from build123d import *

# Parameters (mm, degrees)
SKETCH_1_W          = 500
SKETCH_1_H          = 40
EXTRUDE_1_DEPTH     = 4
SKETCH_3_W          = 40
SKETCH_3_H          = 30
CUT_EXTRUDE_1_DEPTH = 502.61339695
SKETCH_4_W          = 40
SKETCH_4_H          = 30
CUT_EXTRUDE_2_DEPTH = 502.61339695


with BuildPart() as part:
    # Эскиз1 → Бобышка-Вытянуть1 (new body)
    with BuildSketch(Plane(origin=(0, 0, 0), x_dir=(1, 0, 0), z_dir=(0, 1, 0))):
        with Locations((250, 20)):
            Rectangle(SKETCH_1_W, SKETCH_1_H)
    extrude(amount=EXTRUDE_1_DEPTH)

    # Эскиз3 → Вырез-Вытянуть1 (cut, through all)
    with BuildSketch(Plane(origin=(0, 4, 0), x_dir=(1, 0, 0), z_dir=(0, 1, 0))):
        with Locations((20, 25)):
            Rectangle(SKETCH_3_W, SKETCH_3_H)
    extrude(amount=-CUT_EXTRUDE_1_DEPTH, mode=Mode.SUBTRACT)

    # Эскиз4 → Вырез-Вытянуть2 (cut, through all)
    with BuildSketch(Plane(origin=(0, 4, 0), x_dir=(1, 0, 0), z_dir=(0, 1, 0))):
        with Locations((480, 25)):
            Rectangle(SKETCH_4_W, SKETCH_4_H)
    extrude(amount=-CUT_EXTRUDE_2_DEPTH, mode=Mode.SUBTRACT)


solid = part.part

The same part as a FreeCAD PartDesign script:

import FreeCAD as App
import Part
import Sketcher
from FreeCAD import Vector
Q = App.Units.Quantity


def add_polygon(sketch, points):
    """Adds a closed chain of lines whose ends are joined by coincident constraints."""
    first, n = sketch.GeometryCount, len(points)
    for a, b in zip(points, points[1:] + points[:1]):
        sketch.addGeometry(Part.LineSegment(App.Vector(*a, 0), App.Vector(*b, 0)), False)
    for i in range(n):
        sketch.addConstraint(Sketcher.Constraint("Coincident", first + i, 2, first + (i + 1) % n, 1))

doc = App.newDocument("Part")
params = doc.addObject("Spreadsheet::Sheet", "Params")
for row, (alias, value) in enumerate([
    ("sketch1_width", "500 mm"),
    ("sketch1_height", "40 mm"),
    ("pad1_length", "4 mm"),
    ("sketch2_width", "40 mm"),
    ("sketch2_height", "30 mm"),
    ("sketch3_width", "40 mm"),
    ("sketch3_height", "30 mm"),
], start=1):
    params.set(f"A{row}", alias)
    params.set(f"B{row}", "=" + value)
    params.setAlias(f"B{row}", alias)

body = doc.addObject("PartDesign::Body", "Body")

# Sketch on XZ plane
sketch1 = body.newObject("Sketcher::SketchObject", "Sketch")
sketch1.AttachmentSupport = (doc.getObject("XZ_Plane"), [""])
sketch1.MapMode = "FlatFace"
add_polygon(sketch1, [(0, -40), (0, 0), (500, 0), (500, -40)])  # lines 0-3
sketch1.addConstraint(Sketcher.Constraint("Vertical", 0))
sketch1.addConstraint(Sketcher.Constraint("Horizontal", 1))
sketch1.addConstraint(Sketcher.Constraint("Vertical", 2))
sketch1.addConstraint(Sketcher.Constraint("Horizontal", 3))
sketch1.addConstraint(Sketcher.Constraint("Coincident", 0, 2, -1, 1))
sketch1.addConstraint(Sketcher.Constraint("DistanceX", 1, 1, 1, 2, Q("500 mm")))
sketch1.addConstraint(Sketcher.Constraint("DistanceY", 0, 1, 0, 2, Q("40 mm")))
sketch1.setExpression("Constraints[9]", "Params.sketch1_width")
sketch1.setExpression("Constraints[10]", "Params.sketch1_height")
pad1 = body.newObject("PartDesign::Pad", "Pad")
pad1.Profile = sketch1
pad1.setExpression("Length", "Params.pad1_length")
pad1.Reversed = True

# Sketch on XZ plane
sketch2 = body.newObject("Sketcher::SketchObject", "Sketch001")
sketch2.AttachmentSupport = (doc.getObject("XZ_Plane"), [""])
sketch2.MapMode = "FlatFace"
sketch2.AttachmentOffset = App.Placement(Vector(0, 0, -4), App.Rotation())
add_polygon(sketch2, [(0, -40), (0, -10), (40, -10), (40, -40)])  # lines 0-3
sketch2.addConstraint(Sketcher.Constraint("Vertical", 0))
sketch2.addConstraint(Sketcher.Constraint("Horizontal", 1))
sketch2.addConstraint(Sketcher.Constraint("Vertical", 2))
sketch2.addConstraint(Sketcher.Constraint("Horizontal", 3))
sketch2.addConstraint(Sketcher.Constraint("PointOnObject", 0, 2, -2))
sketch2.addConstraint(Sketcher.Constraint("DistanceX", 1, 1, 1, 2, Q("40 mm")))
sketch2.addConstraint(Sketcher.Constraint("DistanceY", 0, 1, 0, 2, Q("30 mm")))
sketch2.addConstraint(Sketcher.Constraint("DistanceY", 0, 2, -1, 1, Q("10 mm")))
sketch2.setExpression("Constraints[9]", "Params.sketch2_width")
sketch2.setExpression("Constraints[10]", "Params.sketch2_height")
pocket1 = body.newObject("PartDesign::Pocket", "Pocket")
pocket1.Profile = sketch2
pocket1.Type = "ThroughAll"
pocket1.Reversed = True

# Sketch on XZ plane
sketch3 = body.newObject("Sketcher::SketchObject", "Sketch002")
sketch3.AttachmentSupport = (doc.getObject("XZ_Plane"), [""])
sketch3.MapMode = "FlatFace"
sketch3.AttachmentOffset = App.Placement(Vector(0, 0, -4), App.Rotation())
add_polygon(sketch3, [(460, -40), (460, -10), (500, -10), (500, -40)])  # lines 0-3
sketch3.addConstraint(Sketcher.Constraint("Vertical", 0))
sketch3.addConstraint(Sketcher.Constraint("Horizontal", 1))
sketch3.addConstraint(Sketcher.Constraint("Vertical", 2))
sketch3.addConstraint(Sketcher.Constraint("Horizontal", 3))
sketch3.addConstraint(Sketcher.Constraint("DistanceX", 1, 1, 1, 2, Q("40 mm")))
sketch3.addConstraint(Sketcher.Constraint("DistanceY", 0, 1, 0, 2, Q("30 mm")))
sketch3.addConstraint(Sketcher.Constraint("DistanceX", -1, 1, 0, 2, Q("460 mm")))
sketch3.addConstraint(Sketcher.Constraint("DistanceY", 0, 2, -1, 1, Q("10 mm")))
sketch3.setExpression("Constraints[8]", "Params.sketch3_width")
sketch3.setExpression("Constraints[9]", "Params.sketch3_height")
pocket2 = body.newObject("PartDesign::Pocket", "Pocket001")
pocket2.Profile = sketch3
pocket2.Type = "ThroughAll"
pocket2.Reversed = True

doc.recompute()
